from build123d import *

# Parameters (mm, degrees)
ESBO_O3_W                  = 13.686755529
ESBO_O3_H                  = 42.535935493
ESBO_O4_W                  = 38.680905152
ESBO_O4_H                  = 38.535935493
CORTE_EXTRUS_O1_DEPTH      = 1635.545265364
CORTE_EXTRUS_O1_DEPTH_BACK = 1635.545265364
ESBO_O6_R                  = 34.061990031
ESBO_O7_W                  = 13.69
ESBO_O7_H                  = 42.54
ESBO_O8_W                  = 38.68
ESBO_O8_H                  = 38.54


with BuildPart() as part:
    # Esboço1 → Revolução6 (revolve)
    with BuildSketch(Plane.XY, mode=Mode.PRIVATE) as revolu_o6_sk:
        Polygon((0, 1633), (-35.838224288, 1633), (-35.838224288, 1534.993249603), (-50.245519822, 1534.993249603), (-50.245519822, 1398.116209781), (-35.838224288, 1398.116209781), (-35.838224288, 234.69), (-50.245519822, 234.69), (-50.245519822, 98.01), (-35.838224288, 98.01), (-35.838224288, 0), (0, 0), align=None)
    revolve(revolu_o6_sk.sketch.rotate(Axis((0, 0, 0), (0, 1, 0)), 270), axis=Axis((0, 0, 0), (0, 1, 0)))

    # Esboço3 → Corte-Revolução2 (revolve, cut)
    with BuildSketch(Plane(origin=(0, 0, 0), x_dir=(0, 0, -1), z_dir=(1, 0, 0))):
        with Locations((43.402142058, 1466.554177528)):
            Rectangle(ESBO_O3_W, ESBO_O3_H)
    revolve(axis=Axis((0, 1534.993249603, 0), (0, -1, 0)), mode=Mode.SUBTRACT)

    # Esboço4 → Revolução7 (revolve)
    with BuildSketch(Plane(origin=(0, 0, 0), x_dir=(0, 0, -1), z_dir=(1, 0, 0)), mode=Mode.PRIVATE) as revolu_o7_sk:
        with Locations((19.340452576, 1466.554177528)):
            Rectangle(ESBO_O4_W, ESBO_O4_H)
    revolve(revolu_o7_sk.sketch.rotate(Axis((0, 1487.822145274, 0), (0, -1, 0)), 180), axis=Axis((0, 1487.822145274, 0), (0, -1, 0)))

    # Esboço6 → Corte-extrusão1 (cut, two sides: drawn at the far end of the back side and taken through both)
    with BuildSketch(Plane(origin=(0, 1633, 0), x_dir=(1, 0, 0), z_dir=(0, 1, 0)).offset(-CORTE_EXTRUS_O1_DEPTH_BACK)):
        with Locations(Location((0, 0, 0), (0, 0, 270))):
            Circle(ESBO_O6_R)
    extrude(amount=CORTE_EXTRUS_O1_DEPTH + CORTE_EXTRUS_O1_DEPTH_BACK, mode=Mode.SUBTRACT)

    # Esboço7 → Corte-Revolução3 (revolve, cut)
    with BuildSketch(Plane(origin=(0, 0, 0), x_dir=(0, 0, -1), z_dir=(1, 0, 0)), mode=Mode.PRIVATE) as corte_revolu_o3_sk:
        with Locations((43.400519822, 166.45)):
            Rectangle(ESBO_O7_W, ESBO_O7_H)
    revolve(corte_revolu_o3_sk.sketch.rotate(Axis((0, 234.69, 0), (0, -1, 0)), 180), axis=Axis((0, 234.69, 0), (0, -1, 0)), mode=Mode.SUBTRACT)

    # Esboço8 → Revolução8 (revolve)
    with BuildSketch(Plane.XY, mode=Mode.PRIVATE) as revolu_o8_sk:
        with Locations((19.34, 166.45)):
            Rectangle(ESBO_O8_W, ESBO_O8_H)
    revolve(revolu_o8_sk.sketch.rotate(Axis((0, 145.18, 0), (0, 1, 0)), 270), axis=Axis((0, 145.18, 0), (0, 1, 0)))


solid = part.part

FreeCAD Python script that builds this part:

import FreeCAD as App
import Part
import Sketcher
Q = App.Units.Quantity


def add_polygon(sketch, points):
    """Adds a closed chain of lines whose ends are joined by coincident constraints."""
    first, n = sketch.GeometryCount, len(points)
    for a, b in zip(points, points[1:] + points[:1]):
        sketch.addGeometry(Part.LineSegment(App.Vector(*a, 0), App.Vector(*b, 0)), False)
    for i in range(n):
        sketch.addConstraint(Sketcher.Constraint("Coincident", first + i, 2, first + (i + 1) % n, 1))

doc = App.newDocument("Part")
params = doc.addObject("Spreadsheet::Sheet", "Params")
for row, (alias, value) in enumerate([
    ("sketch1_height", "1633 mm"),
    ("sketch1_height2", "136.68 mm"),
    ("sketch1_height3", "98.01 mm"),
    ("revolution_angle", "360 deg"),
    ("groove_angle", "360 deg"),
    ("revolution2_angle", "360 deg"),
    ("sketch5_width", "42.54 mm"),
    ("sketch5_height", "13.69 mm"),
    ("groove2_angle", "360 deg"),
    ("sketch6_width", "38.68 mm"),
    ("sketch6_height", "38.54 mm"),
    ("revolution3_angle", "360 deg"),
], start=1):
    params.set(f"A{row}", alias)
    params.set(f"B{row}", "=" + value)
    params.setAlias(f"B{row}", alias)

body = doc.addObject("PartDesign::Body", "Body")

# Sketch on XY plane
sketch1 = body.newObject("Sketcher::SketchObject", "Sketch")
sketch1.AttachmentSupport = (doc.getObject("XY_Plane"), [""])
sketch1.MapMode = "FlatFace"
add_polygon(sketch1, [(0, 1633), (-35.838224, 1633), (-35.838224, 1534.99325), (-50.24552, 1534.99325), (-50.24552, 1398.11621), (-35.838224, 1398.11621), (-35.838224, 234.69), (-50.24552, 234.69), (-50.24552, 98.01), (-35.838224, 98.01), (-35.838224, 0), (0, 0)])  # lines 0-11
sketch1.addConstraint([
    Sketcher.Constraint("Horizontal", 0),
    Sketcher.Constraint("Vertical", 1),
    Sketcher.Constraint("Horizontal", 2),
    Sketcher.Constraint("Vertical", 3),
    Sketcher.Constraint("Horizontal", 4),
    Sketcher.Constraint("Vertical", 5),
    Sketcher.Constraint("Horizontal", 6),
    Sketcher.Constraint("Vertical", 7),
    Sketcher.Constraint("Horizontal", 8),
    Sketcher.Constraint("Vertical", 9),
    Sketcher.Constraint("Horizontal", 10),
    Sketcher.Constraint("Vertical", 11),
    Sketcher.Constraint("Coincident", 10, 2, -1, 1),
    Sketcher.Constraint("Vertical", 1, 2, 4, 2),
    Sketcher.Constraint("Vertical", 3, 2, 6, 2),
    Sketcher.Constraint("Vertical", 5, 2, 8, 2),
    Sketcher.Constraint("DistanceY", 11, 1, 11, 2, Q("1633 mm")),
    Sketcher.Constraint("DistanceY", 7, 2, 7, 1, Q("136.68 mm")),
    Sketcher.Constraint("DistanceY", 9, 2, 9, 1, Q("98.01 mm")),
    Sketcher.Constraint("DistanceY", 1, 2, 1, 1, Q("98.00675 mm")),
    Sketcher.Constraint("DistanceY", 3, 2, 3, 1, Q("136.87704 mm")),
    Sketcher.Constraint("DistanceX", 0, 2, 0, 1, Q("35.838224 mm")),
    Sketcher.Constraint("DistanceX", 2, 2, 2, 1, Q("14.407296 mm")),
])
sketch1.setExpression("Constraints[28]", "Params.sketch1_height")
sketch1.setExpression("Constraints[29]", "Params.sketch1_height2")
sketch1.setExpression("Constraints[30]", "Params.sketch1_height3")
revolution = body.newObject("PartDesign::Revolution", "Revolution")
revolution.Profile = sketch1
revolution.ReferenceAxis = (sketch1, ["V_Axis"])
revolution.setExpression("Angle", "Params.revolution_angle")

# Sketch on YZ plane
sketch2 = body.newObject("Sketcher::SketchObject", "Sketch001")
sketch2.AttachmentSupport = (doc.getObject("YZ_Plane"), [""])
sketch2.MapMode = "FlatFace"
add_polygon(sketch2, [(1487.822145, -36.558764), (1445.28621, -36.558764), (1445.28621, -50.24552), (1487.822145, -50.24552)])  # lines 0-3
sketch2.addConstraint([
    Sketcher.Constraint("Horizontal", 0),
    Sketcher.Constraint("Vertical", 1),
    Sketcher.Constraint("Horizontal", 2),
    Sketcher.Constraint("Vertical", 3),
    Sketcher.Constraint("DistanceX", 0, 2, 0, 1, Q("42.535935 mm")),
    Sketcher.Constraint("DistanceY", 1, 2, 1, 1, Q("13.686756 mm")),
    Sketcher.Constraint("DistanceX", -1, 1, 0, 2, Q("1445.28621 mm")),
    Sketcher.Constraint("DistanceY", 1, 2, -1, 1, Q("50.24552 mm")),
])
groove = body.newObject("PartDesign::Groove", "Groove")
groove.Profile = sketch2
groove.ReferenceAxis = (sketch2, ["H_Axis"])
groove.setExpression("Angle", "Params.groove_angle")

# Sketch on YZ plane
sketch3 = body.newObject("Sketcher::SketchObject", "Sketch002")
sketch3.AttachmentSupport = (doc.getObject("YZ_Plane"), [""])
sketch3.MapMode = "FlatFace"
add_polygon(sketch3, [(1485.822145, 0), (1447.28621, 0), (1447.28621, -38.680905), (1485.822145, -38.680905)])  # lines 0-3
sketch3.addConstraint([
    Sketcher.Constraint("Horizontal", 0),
    Sketcher.Constraint("Vertical", 1),
    Sketcher.Constraint("Horizontal", 2),
    Sketcher.Constraint("Vertical", 3),
    Sketcher.Constraint("PointOnObject", 0, 2, -1),
    Sketcher.Constraint("DistanceX", 0, 2, 0, 1, Q("38.535935 mm")),
    Sketcher.Constraint("DistanceY", 1, 2, 1, 1, Q("38.680905 mm")),
    Sketcher.Constraint("DistanceX", -1, 1, 0, 2, Q("1447.28621 mm")),
])
revolution2 = body.newObject("PartDesign::Revolution", "Revolution001")
revolution2.Profile = sketch3
revolution2.ReferenceAxis = (sketch3, ["H_Axis"])
revolution2.setExpression("Angle", "Params.revolution2_angle")

# Sketch on XZ plane
sketch4 = body.newObject("Sketcher::SketchObject", "Sketch003")
sketch4.AttachmentSupport = (doc.getObject("XZ_Plane"), [""])
sketch4.MapMode = "FlatFace"
sketch4.AttachmentOffset = App.Placement(App.Vector(0, 0, -1633), App.Rotation())
sketch4.addGeometry(Part.Circle(App.Vector(0, 0, 0), App.Vector(0, 0, 1), 34.06199), False)
sketch4.addConstraint([
    Sketcher.Constraint("Coincident", 0, 3, -1, 1),
    Sketcher.Constraint("Diameter", 0, Q("68.12398 mm")),
])
pocket1 = body.newObject("PartDesign::Pocket", "Pocket")
pocket1.Profile = sketch4
pocket1.Type = "ThroughAll"
pocket1.Midplane = True

# Sketch on YZ plane
sketch5 = body.newObject("Sketcher::SketchObject", "Sketch004")
sketch5.AttachmentSupport = (doc.getObject("YZ_Plane"), [""])
sketch5.MapMode = "FlatFace"
add_polygon(sketch5, [(187.72, -36.55552), (145.18, -36.55552), (145.18, -50.24552), (187.72, -50.24552)])  # lines 0-3
sketch5.addConstraint([
    Sketcher.Constraint("Horizontal", 0),
    Sketcher.Constraint("Vertical", 1),
    Sketcher.Constraint("Horizontal", 2),
    Sketcher.Constraint("Vertical", 3),
    Sketcher.Constraint("DistanceX", 0, 2, 0, 1, Q("42.54 mm")),
    Sketcher.Constraint("DistanceY", 1, 2, 1, 1, Q("13.69 mm")),
    Sketcher.Constraint("DistanceX", -1, 1, 0, 2, Q("145.18 mm")),
    Sketcher.Constraint("DistanceY", 0, 2, -1, 1, Q("36.55552 mm")),
])
sketch5.setExpression("Constraints[8]", "Params.sketch5_width")
sketch5.setExpression("Constraints[9]", "Params.sketch5_height")
groove2 = body.newObject("PartDesign::Groove", "Groove001")
groove2.Profile = sketch5
groove2.ReferenceAxis = (sketch5, ["H_Axis"])
groove2.setExpression("Angle", "Params.groove2_angle")

# Sketch on XY plane
sketch6 = body.newObject("Sketcher::SketchObject", "Sketch005")
sketch6.AttachmentSupport = (doc.getObject("XY_Plane"), [""])
sketch6.MapMode = "FlatFace"
add_polygon(sketch6, [(0, 185.72), (0, 147.18), (38.68, 147.18), (38.68, 185.72)])  # lines 0-3
sketch6.addConstraint([
    Sketcher.Constraint("Vertical", 0),
    Sketcher.Constraint("Horizontal", 1),
    Sketcher.Constraint("Vertical", 2),
    Sketcher.Constraint("Horizontal", 3),
    Sketcher.Constraint("PointOnObject", 0, 2, -2),
    Sketcher.Constraint("DistanceX", 1, 1, 1, 2, Q("38.68 mm")),
    Sketcher.Constraint("DistanceY", 0, 2, 0, 1, Q("38.54 mm")),
    Sketcher.Constraint("DistanceY", -1, 1, 0, 2, Q("147.18 mm")),
])
sketch6.setExpression("Constraints[9]", "Params.sketch6_width")
sketch6.setExpression("Constraints[10]", "Params.sketch6_height")
revolution3 = body.newObject("PartDesign::Revolution", "Revolution002")
revolution3.Profile = sketch6
revolution3.ReferenceAxis = (sketch6, ["V_Axis"])
revolution3.setExpression("Angle", "Params.revolution3_angle")

doc.recompute()
